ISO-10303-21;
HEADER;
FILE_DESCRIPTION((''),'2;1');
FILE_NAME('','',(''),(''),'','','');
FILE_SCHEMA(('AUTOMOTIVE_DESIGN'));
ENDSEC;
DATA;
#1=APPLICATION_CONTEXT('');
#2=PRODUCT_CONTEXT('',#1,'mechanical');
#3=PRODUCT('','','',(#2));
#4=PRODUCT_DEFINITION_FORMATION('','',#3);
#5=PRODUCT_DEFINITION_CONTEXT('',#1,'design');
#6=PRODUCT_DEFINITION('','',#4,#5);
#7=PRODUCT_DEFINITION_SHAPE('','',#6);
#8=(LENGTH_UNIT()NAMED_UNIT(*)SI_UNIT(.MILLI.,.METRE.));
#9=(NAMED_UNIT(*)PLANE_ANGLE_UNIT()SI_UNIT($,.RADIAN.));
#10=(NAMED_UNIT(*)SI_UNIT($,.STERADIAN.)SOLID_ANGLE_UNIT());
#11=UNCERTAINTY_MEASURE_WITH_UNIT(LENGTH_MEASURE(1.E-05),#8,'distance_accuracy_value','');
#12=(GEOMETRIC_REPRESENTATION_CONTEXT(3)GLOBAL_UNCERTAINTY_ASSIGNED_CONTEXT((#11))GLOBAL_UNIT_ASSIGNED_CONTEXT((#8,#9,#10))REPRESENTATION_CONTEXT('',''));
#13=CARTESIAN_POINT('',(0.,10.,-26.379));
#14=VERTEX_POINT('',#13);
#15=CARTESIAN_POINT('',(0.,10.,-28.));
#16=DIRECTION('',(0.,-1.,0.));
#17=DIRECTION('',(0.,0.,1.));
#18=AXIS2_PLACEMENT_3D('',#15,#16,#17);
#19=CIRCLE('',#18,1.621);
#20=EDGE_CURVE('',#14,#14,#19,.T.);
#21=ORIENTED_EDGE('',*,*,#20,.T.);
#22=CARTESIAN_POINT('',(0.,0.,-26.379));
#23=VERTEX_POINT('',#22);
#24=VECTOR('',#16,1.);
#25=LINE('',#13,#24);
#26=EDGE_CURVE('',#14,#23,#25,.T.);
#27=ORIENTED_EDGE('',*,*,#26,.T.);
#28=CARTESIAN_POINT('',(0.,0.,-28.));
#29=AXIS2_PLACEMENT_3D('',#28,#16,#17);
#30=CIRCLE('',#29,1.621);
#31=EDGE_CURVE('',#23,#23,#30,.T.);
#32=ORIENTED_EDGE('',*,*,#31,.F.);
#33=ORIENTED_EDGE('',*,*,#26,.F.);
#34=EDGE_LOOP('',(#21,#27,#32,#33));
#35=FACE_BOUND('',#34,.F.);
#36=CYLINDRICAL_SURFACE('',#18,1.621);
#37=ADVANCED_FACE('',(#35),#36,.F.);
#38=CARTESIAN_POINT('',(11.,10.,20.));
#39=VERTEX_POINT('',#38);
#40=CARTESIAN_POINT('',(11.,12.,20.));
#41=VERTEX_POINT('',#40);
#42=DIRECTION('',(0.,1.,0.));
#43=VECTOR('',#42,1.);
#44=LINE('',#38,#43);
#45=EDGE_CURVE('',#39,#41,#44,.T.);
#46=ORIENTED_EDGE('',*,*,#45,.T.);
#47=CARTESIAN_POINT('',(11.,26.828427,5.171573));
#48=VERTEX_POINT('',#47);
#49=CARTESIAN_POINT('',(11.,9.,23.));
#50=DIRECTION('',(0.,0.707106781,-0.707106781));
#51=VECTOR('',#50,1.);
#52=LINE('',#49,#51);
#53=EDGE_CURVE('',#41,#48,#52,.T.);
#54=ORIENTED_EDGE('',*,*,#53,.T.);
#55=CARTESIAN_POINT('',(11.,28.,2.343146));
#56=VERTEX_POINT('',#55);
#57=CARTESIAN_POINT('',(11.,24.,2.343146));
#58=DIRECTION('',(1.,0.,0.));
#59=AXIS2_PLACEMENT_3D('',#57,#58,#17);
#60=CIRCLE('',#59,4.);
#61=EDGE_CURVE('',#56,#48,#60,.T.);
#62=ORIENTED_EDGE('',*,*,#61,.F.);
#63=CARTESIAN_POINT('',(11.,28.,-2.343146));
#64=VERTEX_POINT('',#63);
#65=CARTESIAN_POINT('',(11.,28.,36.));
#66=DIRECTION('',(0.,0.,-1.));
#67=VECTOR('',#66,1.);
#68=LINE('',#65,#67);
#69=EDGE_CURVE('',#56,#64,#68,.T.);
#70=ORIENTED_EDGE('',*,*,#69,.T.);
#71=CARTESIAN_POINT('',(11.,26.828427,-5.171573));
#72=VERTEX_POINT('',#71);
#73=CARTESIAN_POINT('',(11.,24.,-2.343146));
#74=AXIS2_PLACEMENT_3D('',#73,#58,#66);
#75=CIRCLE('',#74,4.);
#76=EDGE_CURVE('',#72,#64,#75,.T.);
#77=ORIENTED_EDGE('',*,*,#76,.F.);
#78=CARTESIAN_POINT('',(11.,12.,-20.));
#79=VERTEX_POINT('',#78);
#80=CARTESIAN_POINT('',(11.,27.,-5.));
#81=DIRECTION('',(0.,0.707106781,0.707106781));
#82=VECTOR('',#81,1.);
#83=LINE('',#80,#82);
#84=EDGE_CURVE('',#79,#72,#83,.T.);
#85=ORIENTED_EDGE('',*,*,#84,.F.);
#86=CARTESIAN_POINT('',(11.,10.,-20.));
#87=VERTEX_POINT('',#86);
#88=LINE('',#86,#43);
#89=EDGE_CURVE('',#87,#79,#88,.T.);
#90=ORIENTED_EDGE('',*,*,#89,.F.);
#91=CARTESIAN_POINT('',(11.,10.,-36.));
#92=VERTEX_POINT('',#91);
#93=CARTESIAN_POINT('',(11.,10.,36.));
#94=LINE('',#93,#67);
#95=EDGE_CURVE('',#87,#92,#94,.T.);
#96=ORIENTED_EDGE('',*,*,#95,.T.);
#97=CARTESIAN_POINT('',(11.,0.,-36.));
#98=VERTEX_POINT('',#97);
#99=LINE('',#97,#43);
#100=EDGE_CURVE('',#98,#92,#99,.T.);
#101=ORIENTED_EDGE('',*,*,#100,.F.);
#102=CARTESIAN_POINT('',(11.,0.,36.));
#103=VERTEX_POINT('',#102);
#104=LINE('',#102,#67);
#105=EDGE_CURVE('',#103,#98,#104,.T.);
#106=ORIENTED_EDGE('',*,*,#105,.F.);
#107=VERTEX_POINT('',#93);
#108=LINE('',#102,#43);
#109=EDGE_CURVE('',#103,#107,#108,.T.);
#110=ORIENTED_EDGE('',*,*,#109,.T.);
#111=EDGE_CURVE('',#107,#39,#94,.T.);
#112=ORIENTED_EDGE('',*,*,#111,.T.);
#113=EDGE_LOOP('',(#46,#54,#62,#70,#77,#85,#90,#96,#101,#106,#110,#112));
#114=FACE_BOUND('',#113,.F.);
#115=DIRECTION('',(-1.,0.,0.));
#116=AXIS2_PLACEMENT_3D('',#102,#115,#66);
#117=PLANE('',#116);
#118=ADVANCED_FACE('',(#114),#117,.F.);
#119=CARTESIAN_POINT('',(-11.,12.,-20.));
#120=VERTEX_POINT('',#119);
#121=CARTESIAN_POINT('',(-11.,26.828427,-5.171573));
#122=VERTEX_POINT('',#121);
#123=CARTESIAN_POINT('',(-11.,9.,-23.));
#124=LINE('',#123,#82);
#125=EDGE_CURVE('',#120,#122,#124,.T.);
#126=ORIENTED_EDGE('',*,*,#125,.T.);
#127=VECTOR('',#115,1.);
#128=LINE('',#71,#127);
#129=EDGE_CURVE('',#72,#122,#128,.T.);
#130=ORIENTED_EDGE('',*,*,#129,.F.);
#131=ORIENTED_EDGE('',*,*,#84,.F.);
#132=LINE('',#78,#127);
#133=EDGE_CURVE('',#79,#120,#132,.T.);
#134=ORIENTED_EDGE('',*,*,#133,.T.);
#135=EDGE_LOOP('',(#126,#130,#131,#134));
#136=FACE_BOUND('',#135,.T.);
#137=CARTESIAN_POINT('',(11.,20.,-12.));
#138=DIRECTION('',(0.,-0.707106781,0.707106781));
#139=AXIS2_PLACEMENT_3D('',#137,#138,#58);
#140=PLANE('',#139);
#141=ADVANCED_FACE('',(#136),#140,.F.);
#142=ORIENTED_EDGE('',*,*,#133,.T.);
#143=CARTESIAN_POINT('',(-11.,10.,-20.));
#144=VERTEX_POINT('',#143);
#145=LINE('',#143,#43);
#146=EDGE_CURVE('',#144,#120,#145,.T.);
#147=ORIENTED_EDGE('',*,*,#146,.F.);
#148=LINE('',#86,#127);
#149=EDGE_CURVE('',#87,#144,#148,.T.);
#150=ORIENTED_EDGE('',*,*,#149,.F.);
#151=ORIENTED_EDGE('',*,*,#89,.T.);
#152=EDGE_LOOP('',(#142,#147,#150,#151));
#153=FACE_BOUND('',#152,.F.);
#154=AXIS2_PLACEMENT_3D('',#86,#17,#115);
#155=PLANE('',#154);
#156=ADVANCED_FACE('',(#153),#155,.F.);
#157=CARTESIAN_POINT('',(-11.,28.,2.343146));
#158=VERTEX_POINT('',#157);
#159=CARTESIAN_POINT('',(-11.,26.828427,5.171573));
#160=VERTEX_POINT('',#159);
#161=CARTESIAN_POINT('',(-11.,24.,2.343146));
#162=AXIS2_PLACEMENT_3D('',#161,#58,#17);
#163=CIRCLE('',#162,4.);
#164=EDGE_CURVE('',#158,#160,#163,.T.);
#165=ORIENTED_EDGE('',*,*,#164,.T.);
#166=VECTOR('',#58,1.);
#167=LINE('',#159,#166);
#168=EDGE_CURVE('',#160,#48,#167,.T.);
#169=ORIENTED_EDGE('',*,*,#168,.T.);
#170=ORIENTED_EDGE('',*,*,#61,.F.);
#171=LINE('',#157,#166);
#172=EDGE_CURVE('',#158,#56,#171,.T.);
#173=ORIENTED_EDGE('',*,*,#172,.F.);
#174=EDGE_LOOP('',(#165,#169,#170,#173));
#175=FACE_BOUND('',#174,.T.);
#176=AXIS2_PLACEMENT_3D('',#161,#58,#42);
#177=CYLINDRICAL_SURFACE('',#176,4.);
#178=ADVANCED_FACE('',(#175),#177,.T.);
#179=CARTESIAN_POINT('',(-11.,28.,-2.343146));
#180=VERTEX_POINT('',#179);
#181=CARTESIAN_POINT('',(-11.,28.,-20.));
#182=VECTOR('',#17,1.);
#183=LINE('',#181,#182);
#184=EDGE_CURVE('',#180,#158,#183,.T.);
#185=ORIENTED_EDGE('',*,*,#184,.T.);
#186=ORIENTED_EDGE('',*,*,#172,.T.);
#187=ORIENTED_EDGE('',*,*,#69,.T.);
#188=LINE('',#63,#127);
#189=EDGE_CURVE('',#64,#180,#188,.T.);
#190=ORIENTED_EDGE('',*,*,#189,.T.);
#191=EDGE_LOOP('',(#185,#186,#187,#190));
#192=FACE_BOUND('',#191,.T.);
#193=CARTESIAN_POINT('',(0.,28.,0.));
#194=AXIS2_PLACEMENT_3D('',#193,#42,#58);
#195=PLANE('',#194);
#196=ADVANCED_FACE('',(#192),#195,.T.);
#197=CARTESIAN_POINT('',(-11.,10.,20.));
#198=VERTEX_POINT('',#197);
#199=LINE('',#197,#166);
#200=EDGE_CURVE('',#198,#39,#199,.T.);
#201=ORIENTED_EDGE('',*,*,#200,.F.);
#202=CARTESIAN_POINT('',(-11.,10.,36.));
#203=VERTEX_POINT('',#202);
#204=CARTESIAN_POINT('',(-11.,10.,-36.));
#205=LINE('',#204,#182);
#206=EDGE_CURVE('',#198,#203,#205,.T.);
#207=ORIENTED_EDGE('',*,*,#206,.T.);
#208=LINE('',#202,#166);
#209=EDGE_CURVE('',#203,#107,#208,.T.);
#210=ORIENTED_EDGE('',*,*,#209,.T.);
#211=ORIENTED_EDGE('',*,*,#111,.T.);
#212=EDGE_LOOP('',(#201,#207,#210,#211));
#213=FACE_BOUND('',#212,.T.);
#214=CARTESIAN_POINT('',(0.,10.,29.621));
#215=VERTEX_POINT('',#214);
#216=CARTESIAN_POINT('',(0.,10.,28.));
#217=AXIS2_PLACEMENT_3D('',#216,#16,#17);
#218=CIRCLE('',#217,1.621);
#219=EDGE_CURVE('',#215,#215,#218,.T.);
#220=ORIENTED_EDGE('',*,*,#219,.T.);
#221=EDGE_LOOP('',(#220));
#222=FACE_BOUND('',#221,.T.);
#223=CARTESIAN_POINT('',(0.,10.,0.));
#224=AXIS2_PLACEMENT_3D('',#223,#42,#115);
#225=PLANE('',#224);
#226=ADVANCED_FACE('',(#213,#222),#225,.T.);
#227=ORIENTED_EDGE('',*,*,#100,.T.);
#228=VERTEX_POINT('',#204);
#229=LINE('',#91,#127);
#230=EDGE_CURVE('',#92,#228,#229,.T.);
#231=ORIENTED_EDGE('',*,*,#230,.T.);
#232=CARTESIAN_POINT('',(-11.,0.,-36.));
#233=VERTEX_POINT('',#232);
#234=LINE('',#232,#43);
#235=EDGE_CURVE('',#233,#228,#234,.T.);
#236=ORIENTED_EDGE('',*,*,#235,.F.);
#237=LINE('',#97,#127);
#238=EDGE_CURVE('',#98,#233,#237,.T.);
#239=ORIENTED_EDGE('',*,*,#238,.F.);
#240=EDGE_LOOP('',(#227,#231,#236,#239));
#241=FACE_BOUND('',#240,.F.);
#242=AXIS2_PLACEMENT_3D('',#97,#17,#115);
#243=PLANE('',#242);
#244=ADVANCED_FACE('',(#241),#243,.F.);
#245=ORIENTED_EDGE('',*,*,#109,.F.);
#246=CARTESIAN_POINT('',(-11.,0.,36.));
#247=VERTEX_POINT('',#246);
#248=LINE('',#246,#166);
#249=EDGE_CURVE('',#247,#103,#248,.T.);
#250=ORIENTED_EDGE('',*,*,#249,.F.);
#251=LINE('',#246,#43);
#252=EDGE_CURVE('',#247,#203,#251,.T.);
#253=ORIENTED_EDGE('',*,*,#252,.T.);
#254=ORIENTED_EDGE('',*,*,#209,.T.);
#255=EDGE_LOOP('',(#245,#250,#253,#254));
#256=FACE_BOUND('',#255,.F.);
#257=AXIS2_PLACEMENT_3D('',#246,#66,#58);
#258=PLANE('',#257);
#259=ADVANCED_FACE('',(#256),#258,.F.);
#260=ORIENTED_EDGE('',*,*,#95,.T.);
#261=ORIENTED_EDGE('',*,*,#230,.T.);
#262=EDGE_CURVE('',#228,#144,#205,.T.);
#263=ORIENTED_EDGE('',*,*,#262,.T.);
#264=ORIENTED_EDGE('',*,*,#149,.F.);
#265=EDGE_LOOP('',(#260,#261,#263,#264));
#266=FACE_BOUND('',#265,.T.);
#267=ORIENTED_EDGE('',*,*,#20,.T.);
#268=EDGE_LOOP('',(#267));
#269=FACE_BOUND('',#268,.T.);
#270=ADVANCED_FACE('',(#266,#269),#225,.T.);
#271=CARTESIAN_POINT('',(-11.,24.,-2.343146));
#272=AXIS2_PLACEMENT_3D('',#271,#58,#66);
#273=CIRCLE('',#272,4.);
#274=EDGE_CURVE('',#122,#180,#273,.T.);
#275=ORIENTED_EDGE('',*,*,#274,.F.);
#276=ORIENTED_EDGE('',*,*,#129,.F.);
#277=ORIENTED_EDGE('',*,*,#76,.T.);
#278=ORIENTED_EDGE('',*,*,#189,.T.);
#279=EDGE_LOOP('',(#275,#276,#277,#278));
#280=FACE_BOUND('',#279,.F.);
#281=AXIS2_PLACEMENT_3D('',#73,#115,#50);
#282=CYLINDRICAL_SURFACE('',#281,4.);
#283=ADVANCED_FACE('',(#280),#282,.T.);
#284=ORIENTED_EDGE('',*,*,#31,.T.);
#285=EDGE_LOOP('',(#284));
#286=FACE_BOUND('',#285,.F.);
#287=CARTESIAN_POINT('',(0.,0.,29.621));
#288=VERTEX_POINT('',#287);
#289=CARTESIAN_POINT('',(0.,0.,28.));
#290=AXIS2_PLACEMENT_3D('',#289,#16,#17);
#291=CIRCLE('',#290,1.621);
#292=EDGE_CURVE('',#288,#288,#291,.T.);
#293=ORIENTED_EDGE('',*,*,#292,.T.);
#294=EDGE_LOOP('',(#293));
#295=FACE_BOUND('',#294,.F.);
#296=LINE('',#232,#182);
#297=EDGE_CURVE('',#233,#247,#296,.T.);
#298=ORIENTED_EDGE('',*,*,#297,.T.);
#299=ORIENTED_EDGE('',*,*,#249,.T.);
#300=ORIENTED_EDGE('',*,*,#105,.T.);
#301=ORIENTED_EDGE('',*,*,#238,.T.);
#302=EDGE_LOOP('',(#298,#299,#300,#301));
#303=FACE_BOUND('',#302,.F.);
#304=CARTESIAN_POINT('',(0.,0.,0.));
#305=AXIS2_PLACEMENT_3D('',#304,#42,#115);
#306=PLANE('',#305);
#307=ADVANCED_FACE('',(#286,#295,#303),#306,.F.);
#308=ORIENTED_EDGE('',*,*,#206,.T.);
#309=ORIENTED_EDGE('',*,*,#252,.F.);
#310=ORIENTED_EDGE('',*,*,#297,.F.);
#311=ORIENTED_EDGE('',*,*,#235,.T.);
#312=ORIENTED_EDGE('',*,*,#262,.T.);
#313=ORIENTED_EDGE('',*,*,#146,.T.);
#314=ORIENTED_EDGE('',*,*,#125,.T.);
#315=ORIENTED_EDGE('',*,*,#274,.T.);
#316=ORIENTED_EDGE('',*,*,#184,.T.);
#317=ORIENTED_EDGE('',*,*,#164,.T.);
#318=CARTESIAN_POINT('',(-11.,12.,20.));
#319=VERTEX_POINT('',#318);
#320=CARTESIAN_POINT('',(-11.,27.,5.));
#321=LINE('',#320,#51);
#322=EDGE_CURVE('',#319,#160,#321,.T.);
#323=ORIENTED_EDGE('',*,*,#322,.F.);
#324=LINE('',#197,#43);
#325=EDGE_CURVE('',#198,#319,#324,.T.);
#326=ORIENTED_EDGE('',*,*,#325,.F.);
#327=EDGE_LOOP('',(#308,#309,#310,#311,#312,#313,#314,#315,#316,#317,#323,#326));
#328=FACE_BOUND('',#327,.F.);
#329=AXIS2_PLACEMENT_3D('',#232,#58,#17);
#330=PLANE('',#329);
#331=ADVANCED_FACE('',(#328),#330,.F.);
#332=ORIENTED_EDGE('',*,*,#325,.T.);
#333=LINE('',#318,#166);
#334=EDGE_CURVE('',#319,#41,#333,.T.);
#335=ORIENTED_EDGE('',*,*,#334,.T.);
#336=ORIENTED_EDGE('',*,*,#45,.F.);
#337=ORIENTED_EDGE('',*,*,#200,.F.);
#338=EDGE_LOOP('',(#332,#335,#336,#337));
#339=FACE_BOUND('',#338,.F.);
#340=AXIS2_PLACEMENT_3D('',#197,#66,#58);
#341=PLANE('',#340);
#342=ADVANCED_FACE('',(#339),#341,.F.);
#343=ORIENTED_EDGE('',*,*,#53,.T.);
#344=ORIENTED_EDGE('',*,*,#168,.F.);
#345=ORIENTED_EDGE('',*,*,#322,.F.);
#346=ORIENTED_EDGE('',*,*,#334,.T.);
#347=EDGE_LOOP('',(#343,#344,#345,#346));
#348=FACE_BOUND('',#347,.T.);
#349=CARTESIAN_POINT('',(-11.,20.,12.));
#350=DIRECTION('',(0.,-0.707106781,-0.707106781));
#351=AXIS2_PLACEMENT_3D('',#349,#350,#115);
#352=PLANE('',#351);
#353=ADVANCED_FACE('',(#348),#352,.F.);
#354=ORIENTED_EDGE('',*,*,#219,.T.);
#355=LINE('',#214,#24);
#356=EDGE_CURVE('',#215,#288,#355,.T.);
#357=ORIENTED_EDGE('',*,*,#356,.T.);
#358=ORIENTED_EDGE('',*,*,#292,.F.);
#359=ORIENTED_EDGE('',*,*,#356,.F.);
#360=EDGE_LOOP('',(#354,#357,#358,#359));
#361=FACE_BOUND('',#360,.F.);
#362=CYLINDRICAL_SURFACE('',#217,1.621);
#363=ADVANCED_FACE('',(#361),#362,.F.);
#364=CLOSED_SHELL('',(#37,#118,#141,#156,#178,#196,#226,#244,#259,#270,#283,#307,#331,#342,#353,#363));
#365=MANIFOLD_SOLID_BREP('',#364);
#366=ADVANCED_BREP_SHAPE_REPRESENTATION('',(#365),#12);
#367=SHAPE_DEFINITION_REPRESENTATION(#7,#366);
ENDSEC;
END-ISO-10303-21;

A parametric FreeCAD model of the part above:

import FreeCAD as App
import Part
import Sketcher

V = App.Vector
Q = App.Units.Quantity


def edges_at(feature, points):
    """Names of the edges that pass closest to the given points."""
    edges = feature.Shape.Edges
    near = lambda p: min(range(len(edges)), key=lambda i: edges[i].distToShape(Part.Vertex(*p))[0])
    return sorted({f"Edge{near(p) + 1}" for p in points})


def add_polygon(sketch, points):
    """Adds a closed chain of lines whose ends are joined by coincident constraints."""
    first, n = sketch.GeometryCount, len(points)
    for a, b in zip(points, points[1:] + points[:1]):
        sketch.addGeometry(Part.LineSegment(App.Vector(*a, 0), App.Vector(*b, 0)), False)
    for i in range(n):
        sketch.addConstraint(Sketcher.Constraint("Coincident", first + i, 2, first + (i + 1) % n, 1))

doc = App.newDocument("Part")
params = doc.addObject("Spreadsheet::Sheet", "Params")
for row, (alias, value) in enumerate([
    ("sketch1_width", "22 mm"),
    ("sketch1_height", "72 mm"),
    ("pad1_length", "10 mm"),
    ("hole_diameter", "3.242 mm"),
    ("hole_depth", "10 mm"),
    ("sketch3_width", "22 mm"),
    ("sketch3_height", "40 mm"),
    ("pad2_length", "18 mm"),
    ("chamfer_size", "16 mm"),
    ("fillet_radius", "4 mm"),
], start=1):
    params.set(f"A{row}", alias)
    params.set(f"B{row}", "=" + value)
    params.setAlias(f"B{row}", alias)

body = doc.addObject("PartDesign::Body", "Body")

sketch1 = body.newObject("Sketcher::SketchObject", "Sketch")
sketch1.AttachmentSupport = (doc.getObject("XZ_Plane"), [""])
sketch1.MapMode = "FlatFace"
add_polygon(sketch1, [(-11, -36), (-11, 36), (11, 36), (11, -36)])
sketch1.addConstraint(Sketcher.Constraint("Vertical", 0))
sketch1.addConstraint(Sketcher.Constraint("Horizontal", 1))
sketch1.addConstraint(Sketcher.Constraint("Vertical", 2))
sketch1.addConstraint(Sketcher.Constraint("Horizontal", 3))
sketch1.addConstraint(Sketcher.Constraint("Symmetric", 0, 2, 2, 2, -1, 1))
sketch1.addConstraint(Sketcher.Constraint("DistanceX", 1, 1, 1, 2, Q("22 mm")))
sketch1.addConstraint(Sketcher.Constraint("DistanceY", 0, 1, 0, 2, Q("72 mm")))
sketch1.setExpression("Constraints[9]", "Params.sketch1_width")
sketch1.setExpression("Constraints[10]", "Params.sketch1_height")
pad1 = body.newObject("PartDesign::Pad", "Pad")
pad1.Profile = sketch1
pad1.setExpression("Length", "Params.pad1_length")
pad1.Reversed = True

sketch2 = body.newObject("Sketcher::SketchObject", "Sketch001")
sketch2.AttachmentSupport = (doc.getObject("XZ_Plane"), [""])
sketch2.MapMode = "FlatFace"
sketch2.AttachmentOffset = App.Placement(V(0, 0, -10), App.Rotation())
sketch2.addGeometry(Part.Circle(V(0, 28, 0), V(0, 0, 1), 1.6), False)
sketch2.addGeometry(Part.Circle(V(0, -28, 0), V(0, 0, 1), 1.6), False)
sketch2.addConstraint(Sketcher.Constraint("Equal", 0, 1))
sketch2.addConstraint(Sketcher.Constraint("Symmetric", 0, 3, 1, 3, -1, 1))
sketch2.addConstraint(Sketcher.Constraint("PointOnObject", 0, 3, -2))
sketch2.addConstraint(Sketcher.Constraint("Diameter", 0, Q("3.242 mm")))
sketch2.addConstraint(Sketcher.Constraint("DistanceY", -1, 1, 0, 3, Q("28 mm")))
doc.recompute()
hole = body.newObject("PartDesign::Hole", "Hole")
hole.Profile = sketch2
hole.ThreadType = "None"
hole.setExpression("Diameter", "Params.hole_diameter")
hole.DepthType = "Dimension"
hole.setExpression("Depth", "Params.hole_depth")
hole.DrillPoint = "Flat"
hole.Reversed = True

sketch3 = body.newObject("Sketcher::SketchObject", "Sketch002")
sketch3.AttachmentSupport = (doc.getObject("XZ_Plane"), [""])
sketch3.MapMode = "FlatFace"
sketch3.AttachmentOffset = App.Placement(V(0, 0, -10), App.Rotation())
add_polygon(sketch3, [(-11, 20), (11, 20), (11, -20), (-11, -20)])
sketch3.addConstraint(Sketcher.Constraint("Horizontal", 0))
sketch3.addConstraint(Sketcher.Constraint("Vertical", 1))
sketch3.addConstraint(Sketcher.Constraint("Horizontal", 2))
sketch3.addConstraint(Sketcher.Constraint("Vertical", 3))
sketch3.addConstraint(Sketcher.Constraint("Symmetric", 0, 2, 2, 2, -1, 1))
sketch3.addConstraint(Sketcher.Constraint("DistanceX", 0, 1, 0, 2, Q("22 mm")))
sketch3.addConstraint(Sketcher.Constraint("DistanceY", 1, 2, 1, 1, Q("40 mm")))
sketch3.setExpression("Constraints[9]", "Params.sketch3_width")
sketch3.setExpression("Constraints[10]", "Params.sketch3_height")
pad2 = body.newObject("PartDesign::Pad", "Pad001")
pad2.Profile = sketch3
pad2.setExpression("Length", "Params.pad2_length")
pad2.Reversed = True
doc.recompute()

chamfer = body.newObject("PartDesign::Chamfer", "Chamfer")
chamfer.Base = (pad2, edges_at(pad2, [(0, 28, -20), (0, 28, 20)]))
chamfer.setExpression("Size", "Params.chamfer_size")
doc.recompute()

fillet = body.newObject("PartDesign::Fillet", "Fillet")
fillet.Base = (chamfer, edges_at(chamfer, [(0, 28, 4), (0, 28, -4)]))
fillet.setExpression("Radius", "Params.fillet_radius")

doc.recompute()
